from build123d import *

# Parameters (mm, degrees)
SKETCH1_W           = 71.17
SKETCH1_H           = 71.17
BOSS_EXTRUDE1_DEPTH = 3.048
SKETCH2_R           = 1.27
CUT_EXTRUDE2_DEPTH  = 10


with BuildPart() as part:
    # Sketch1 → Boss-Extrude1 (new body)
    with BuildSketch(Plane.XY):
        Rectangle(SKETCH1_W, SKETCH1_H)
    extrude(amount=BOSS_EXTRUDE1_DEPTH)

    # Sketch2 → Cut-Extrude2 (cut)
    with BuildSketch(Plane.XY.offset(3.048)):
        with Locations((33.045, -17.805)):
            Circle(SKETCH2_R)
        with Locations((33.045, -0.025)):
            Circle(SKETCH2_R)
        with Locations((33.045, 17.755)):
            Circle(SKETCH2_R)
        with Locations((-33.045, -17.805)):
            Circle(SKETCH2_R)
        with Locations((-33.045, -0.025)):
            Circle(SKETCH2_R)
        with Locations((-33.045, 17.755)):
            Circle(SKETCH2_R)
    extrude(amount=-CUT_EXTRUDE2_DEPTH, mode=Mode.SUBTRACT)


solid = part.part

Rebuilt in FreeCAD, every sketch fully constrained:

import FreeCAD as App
import Part
import Sketcher
from FreeCAD import Vector
Q = App.Units.Quantity


def add_polygon(sketch, points):
    """Adds a closed chain of lines whose ends are joined by coincident constraints."""
    first, n = sketch.GeometryCount, len(points)
    for a, b in zip(points, points[1:] + points[:1]):
        sketch.addGeometry(Part.LineSegment(App.Vector(*a, 0), App.Vector(*b, 0)), False)
    for i in range(n):
        sketch.addConstraint(Sketcher.Constraint("Coincident", first + i, 2, first + (i + 1) % n, 1))

doc = App.newDocument("Part")
params = doc.addObject("Spreadsheet::Sheet", "Params")
for row, (alias, value) in enumerate([
    ("pad1_length", "0.12 in"),
    ("sketch2_diameter", "0.1 in"),
    ("pocket1_length", "10 mm"),
], start=1):
    params.set(f"A{row}", alias)
    params.set(f"B{row}", "=" + value)
    params.setAlias(f"B{row}", alias)

body = doc.addObject("PartDesign::Body", "Body")

sketch1 = doc.addObject("Sketcher::SketchObject", "Sketch")
body.addObject(sketch1)
sketch1.AttachmentSupport = (doc.XY_Plane, [""])
sketch1.MapMode = "FlatFace"
add_polygon(sketch1, [(-36, 36), (-36, -36), (36, -36), (36, 36)])
sketch1.addConstraint(Sketcher.Constraint("Vertical", 0))
sketch1.addConstraint(Sketcher.Constraint("Horizontal", 1))
sketch1.addConstraint(Sketcher.Constraint("Vertical", 2))
sketch1.addConstraint(Sketcher.Constraint("Horizontal", 3))
sketch1.addConstraint(Sketcher.Constraint("Symmetric", 0, 2, 2, 2, -1, 1))
sketch1.addConstraint(Sketcher.Constraint("Equal", 3, 0))
sketch1.addConstraint(Sketcher.Constraint("DistanceX", 1, 1, 1, 2, Q("71.17 mm")))
pad1 = doc.addObject("PartDesign::Pad", "Pad")
body.addObject(pad1)
pad1.Profile = sketch1
pad1.setExpression("Length", "Params.pad1_length")

sketch2 = doc.addObject("Sketcher::SketchObject", "Sketch001")
body.addObject(sketch2)
sketch2.AttachmentSupport = (doc.XY_Plane, [""])
sketch2.MapMode = "FlatFace"
sketch2.AttachmentOffset = App.Placement(Vector(0, 0, 0.12 * 25.4), App.Rotation())
sketch2.addGeometry(Part.Circle(Vector(33, -17.8, 0), Vector(0, 0, 1), 1.3), False)
sketch2.addGeometry(Part.Circle(Vector(33, 0, 0), Vector(0, 0, 1), 1.3), False)
sketch2.addGeometry(Part.Circle(Vector(33, 17.8, 0), Vector(0, 0, 1), 1.3), False)
sketch2.addGeometry(Part.Circle(Vector(-33, -17.8, 0), Vector(0, 0, 1), 1.3), False)
sketch2.addGeometry(Part.Circle(Vector(-33, 0, 0), Vector(0, 0, 1), 1.3), False)
sketch2.addGeometry(Part.Circle(Vector(-33, 17.8, 0), Vector(0, 0, 1), 1.3), False)
sketch2.addConstraint(Sketcher.Constraint("Equal", 0, 1))
sketch2.addConstraint(Sketcher.Constraint("Equal", 1, 2))
sketch2.addConstraint(Sketcher.Constraint("Equal", 2, 3))
sketch2.addConstraint(Sketcher.Constraint("Equal", 3, 4))
sketch2.addConstraint(Sketcher.Constraint("Equal", 4, 5))
sketch2.addConstraint(Sketcher.Constraint("Symmetric", 0, 3, 3, 3, -2))
sketch2.addConstraint(Sketcher.Constraint("Symmetric", 1, 3, 4, 3, -2))
sketch2.addConstraint(Sketcher.Constraint("Symmetric", 2, 3, 5, 3, -2))
sketch2.addConstraint(Sketcher.Constraint("Vertical", 0, 3, 1, 3))
sketch2.addConstraint(Sketcher.Constraint("Vertical", 1, 3, 2, 3))
sketch2.addConstraint(Sketcher.Constraint("Diameter", 0, Q("0.1 in")))
sketch2.addConstraint(Sketcher.Constraint("DistanceY", 0, 3, 1, 3, Q("0.7 in")))
sketch2.addConstraint(Sketcher.Constraint("DistanceY", 1, 3, 2, 3, Q("0.7 in")))
sketch2.addConstraint(Sketcher.Constraint("DistanceX", -1, 1, 0, 3, Q("33.045 mm")))
sketch2.addConstraint(Sketcher.Constraint("DistanceY", 0, 3, -1, 1, Q("17.805 mm")))
sketch2.setExpression("Constraints[10]", "Params.sketch2_diameter")
pocket1 = doc.addObject("PartDesign::Pocket", "Pocket")
body.addObject(pocket1)
pocket1.Profile = sketch2
pocket1.setExpression("Length", "Params.pocket1_length")

doc.recompute()
